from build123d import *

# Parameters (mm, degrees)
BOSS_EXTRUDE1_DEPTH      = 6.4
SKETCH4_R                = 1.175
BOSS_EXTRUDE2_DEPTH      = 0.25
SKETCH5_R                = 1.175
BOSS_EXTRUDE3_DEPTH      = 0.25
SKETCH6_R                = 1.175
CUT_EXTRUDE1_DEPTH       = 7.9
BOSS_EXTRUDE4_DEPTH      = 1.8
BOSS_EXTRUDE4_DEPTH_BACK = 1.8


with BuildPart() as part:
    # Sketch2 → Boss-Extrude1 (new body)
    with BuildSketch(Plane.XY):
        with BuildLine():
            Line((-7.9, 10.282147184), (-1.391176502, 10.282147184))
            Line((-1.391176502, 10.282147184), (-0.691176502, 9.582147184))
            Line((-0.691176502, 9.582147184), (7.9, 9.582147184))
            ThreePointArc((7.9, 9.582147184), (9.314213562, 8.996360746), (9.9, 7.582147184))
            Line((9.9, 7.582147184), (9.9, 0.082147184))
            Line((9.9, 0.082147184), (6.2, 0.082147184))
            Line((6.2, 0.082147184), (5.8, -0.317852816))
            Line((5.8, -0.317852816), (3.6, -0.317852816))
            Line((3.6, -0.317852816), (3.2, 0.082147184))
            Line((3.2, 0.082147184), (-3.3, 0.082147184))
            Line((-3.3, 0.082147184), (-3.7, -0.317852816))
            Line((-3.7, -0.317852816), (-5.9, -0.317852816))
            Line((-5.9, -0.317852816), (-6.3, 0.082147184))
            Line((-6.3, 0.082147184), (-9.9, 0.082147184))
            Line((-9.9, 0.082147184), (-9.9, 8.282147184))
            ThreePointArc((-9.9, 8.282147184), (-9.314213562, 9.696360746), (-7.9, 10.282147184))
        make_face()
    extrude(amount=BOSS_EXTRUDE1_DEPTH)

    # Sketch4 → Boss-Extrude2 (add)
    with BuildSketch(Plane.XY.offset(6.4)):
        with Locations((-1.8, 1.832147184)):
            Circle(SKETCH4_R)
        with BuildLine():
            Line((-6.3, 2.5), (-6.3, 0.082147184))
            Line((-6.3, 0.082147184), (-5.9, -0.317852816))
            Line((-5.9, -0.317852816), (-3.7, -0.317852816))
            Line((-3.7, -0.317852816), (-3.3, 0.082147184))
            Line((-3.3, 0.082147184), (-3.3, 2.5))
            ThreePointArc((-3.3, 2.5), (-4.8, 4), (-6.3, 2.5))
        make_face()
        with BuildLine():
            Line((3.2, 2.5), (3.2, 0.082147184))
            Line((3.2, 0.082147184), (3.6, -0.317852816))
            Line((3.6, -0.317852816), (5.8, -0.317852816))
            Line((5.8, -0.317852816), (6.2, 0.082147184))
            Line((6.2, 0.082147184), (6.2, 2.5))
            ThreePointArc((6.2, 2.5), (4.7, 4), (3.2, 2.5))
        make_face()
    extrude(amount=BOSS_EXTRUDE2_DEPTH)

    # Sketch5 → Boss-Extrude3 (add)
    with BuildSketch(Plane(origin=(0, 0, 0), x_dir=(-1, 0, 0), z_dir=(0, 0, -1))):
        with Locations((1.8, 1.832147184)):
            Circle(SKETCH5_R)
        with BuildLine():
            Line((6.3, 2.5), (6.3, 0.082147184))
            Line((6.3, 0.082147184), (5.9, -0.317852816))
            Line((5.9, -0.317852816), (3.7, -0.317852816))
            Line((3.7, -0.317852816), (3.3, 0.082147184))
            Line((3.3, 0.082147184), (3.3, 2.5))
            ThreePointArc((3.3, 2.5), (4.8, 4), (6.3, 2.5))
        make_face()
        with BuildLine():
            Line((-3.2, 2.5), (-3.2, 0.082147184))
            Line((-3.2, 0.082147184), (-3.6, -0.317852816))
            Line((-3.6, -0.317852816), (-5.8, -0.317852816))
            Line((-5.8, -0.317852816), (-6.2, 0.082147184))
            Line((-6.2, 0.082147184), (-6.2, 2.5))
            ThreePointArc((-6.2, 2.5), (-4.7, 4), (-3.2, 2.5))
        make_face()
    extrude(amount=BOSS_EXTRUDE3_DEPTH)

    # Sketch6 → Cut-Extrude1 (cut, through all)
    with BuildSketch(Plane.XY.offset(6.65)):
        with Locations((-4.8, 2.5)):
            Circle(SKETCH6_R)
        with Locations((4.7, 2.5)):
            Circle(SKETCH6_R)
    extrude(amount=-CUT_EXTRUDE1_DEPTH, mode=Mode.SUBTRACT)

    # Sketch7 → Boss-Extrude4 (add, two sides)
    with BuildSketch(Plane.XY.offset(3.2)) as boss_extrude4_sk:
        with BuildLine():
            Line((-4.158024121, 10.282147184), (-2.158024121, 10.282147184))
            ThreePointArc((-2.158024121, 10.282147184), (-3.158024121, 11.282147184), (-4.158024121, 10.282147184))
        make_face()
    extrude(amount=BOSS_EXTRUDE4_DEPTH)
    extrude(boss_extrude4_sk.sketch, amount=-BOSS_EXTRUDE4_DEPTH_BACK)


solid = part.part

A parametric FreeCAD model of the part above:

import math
import FreeCAD as App
import Part
import Sketcher
Q = App.Units.Quantity

doc = App.newDocument("Part")
body = doc.addObject("PartDesign::Body", "Body")

# Sketch on XY plane
sketch1 = body.newObject("Sketcher::SketchObject", "Sketch")
sketch1.AttachmentSupport = (doc.getObject("XY_Plane"), [""])
sketch1.MapMode = "FlatFace"
sketch1.addGeometry(Part.LineSegment(App.Vector(-1.4, 10.3, 0), App.Vector(-7.9, 10.3, 0)), False)
sketch1.addGeometry(Part.ArcOfCircle(Part.Circle(App.Vector(-7.9, 8.3, 0), App.Vector(0, 0, 1), 2), math.radians(90), math.radians(180)), False)
sketch1.addGeometry(Part.LineSegment(App.Vector(-9.9, 8.3, 0), App.Vector(-9.9, 0.1, 0)), False)
sketch1.addGeometry(Part.LineSegment(App.Vector(-9.9, 0.1, 0), App.Vector(-6.3, 0.1, 0)), False)
sketch1.addGeometry(Part.LineSegment(App.Vector(-6.3, 0.1, 0), App.Vector(-5.9, -0.3, 0)), False)
sketch1.addGeometry(Part.LineSegment(App.Vector(-5.9, -0.3, 0), App.Vector(-3.7, -0.3, 0)), False)
sketch1.addGeometry(Part.LineSegment(App.Vector(-3.7, -0.3, 0), App.Vector(-3.3, 0.1, 0)), False)
sketch1.addGeometry(Part.LineSegment(App.Vector(-3.3, 0.1, 0), App.Vector(3.2, 0.1, 0)), False)
sketch1.addGeometry(Part.LineSegment(App.Vector(3.2, 0.1, 0), App.Vector(3.6, -0.3, 0)), False)
sketch1.addGeometry(Part.LineSegment(App.Vector(3.6, -0.3, 0), App.Vector(5.8, -0.3, 0)), False)
sketch1.addGeometry(Part.LineSegment(App.Vector(5.8, -0.3, 0), App.Vector(6.2, 0.1, 0)), False)
sketch1.addGeometry(Part.LineSegment(App.Vector(6.2, 0.1, 0), App.Vector(9.9, 0.1, 0)), False)
sketch1.addGeometry(Part.LineSegment(App.Vector(9.9, 0.1, 0), App.Vector(9.9, 7.6, 0)), False)
sketch1.addGeometry(Part.ArcOfCircle(Part.Circle(App.Vector(7.9, 7.6, 0), App.Vector(0, 0, 1), 2), math.radians(0), math.radians(90)), False)
sketch1.addGeometry(Part.LineSegment(App.Vector(7.9, 9.6, 0), App.Vector(-0.7, 9.6, 0)), False)
sketch1.addGeometry(Part.LineSegment(App.Vector(-0.7, 9.6, 0), App.Vector(-1.4, 10.3, 0)), False)
sketch1.addConstraint(Sketcher.Constraint("Tangent", 0, 2, 1, 1))
sketch1.addConstraint(Sketcher.Constraint("Tangent", 1, 2, 2, 1))
sketch1.addConstraint(Sketcher.Constraint("Coincident", 2, 2, 3, 1))
sketch1.addConstraint(Sketcher.Constraint("Coincident", 3, 2, 4, 1))
sketch1.addConstraint(Sketcher.Constraint("Coincident", 4, 2, 5, 1))
sketch1.addConstraint(Sketcher.Constraint("Coincident", 5, 2, 6, 1))
sketch1.addConstraint(Sketcher.Constraint("Coincident", 6, 2, 7, 1))
sketch1.addConstraint(Sketcher.Constraint("Coincident", 7, 2, 8, 1))
sketch1.addConstraint(Sketcher.Constraint("Coincident", 8, 2, 9, 1))
sketch1.addConstraint(Sketcher.Constraint("Coincident", 9, 2, 10, 1))
sketch1.addConstraint(Sketcher.Constraint("Coincident", 10, 2, 11, 1))
sketch1.addConstraint(Sketcher.Constraint("Coincident", 11, 2, 12, 1))
sketch1.addConstraint(Sketcher.Constraint("Tangent", 12, 2, 13, 1))
sketch1.addConstraint(Sketcher.Constraint("Tangent", 13, 2, 14, 1))
sketch1.addConstraint(Sketcher.Constraint("Coincident", 14, 2, 15, 1))
sketch1.addConstraint(Sketcher.Constraint("Coincident", 15, 2, 0, 1))
sketch1.addConstraint(Sketcher.Constraint("Horizontal", 0))
sketch1.addConstraint(Sketcher.Constraint("Vertical", 2))
sketch1.addConstraint(Sketcher.Constraint("Horizontal", 3))
sketch1.addConstraint(Sketcher.Constraint("Horizontal", 5))
sketch1.addConstraint(Sketcher.Constraint("Horizontal", 7))
sketch1.addConstraint(Sketcher.Constraint("Horizontal", 9))
sketch1.addConstraint(Sketcher.Constraint("Horizontal", 11))
sketch1.addConstraint(Sketcher.Constraint("Vertical", 12))
sketch1.addConstraint(Sketcher.Constraint("Horizontal", 14))
sketch1.addConstraint(Sketcher.Constraint("Equal", 1, 13))
sketch1.addConstraint(Sketcher.Constraint("Symmetric", 2, 2, 11, 2, -2))
sketch1.addConstraint(Sketcher.Constraint("Perpendicular", 4, 6))
sketch1.addConstraint(Sketcher.Constraint("Perpendicular", 6, 8))
sketch1.addConstraint(Sketcher.Constraint("Perpendicular", 8, 10))
sketch1.addConstraint(Sketcher.Constraint("Perpendicular", 10, 15))
sketch1.addConstraint(Sketcher.Constraint("Horizontal", 3, 2, 6, 2))
sketch1.addConstraint(Sketcher.Constraint("Horizontal", 5, 2, 8, 2))
sketch1.addConstraint(Sketcher.Constraint("Equal", 5, 9))
sketch1.addConstraint(Sketcher.Constraint("Equal", 4, 6))
sketch1.addConstraint(Sketcher.Constraint("Radius", 1, Q("2 mm")))
sketch1.addConstraint(Sketcher.Constraint("DistanceX", 3, 1, 3, 2, Q("3.6 mm")))
sketch1.addConstraint(Sketcher.Constraint("DistanceX", 5, 1, 5, 2, Q("2.2 mm")))
sketch1.addConstraint(Sketcher.Constraint("DistanceX", 7, 1, 7, 2, Q("6.5 mm")))
sketch1.addConstraint(Sketcher.Constraint("DistanceX", 11, 1, 11, 2, Q("3.7 mm")))
sketch1.addConstraint(Sketcher.Constraint("DistanceY", 2, 2, 2, 1, Q("8.2 mm")))
sketch1.addConstraint(Sketcher.Constraint("DistanceY", 12, 1, 12, 2, Q("7.5 mm")))
sketch1.addConstraint(Sketcher.Constraint("DistanceX", 2, 2, 4, 2, Q("4 mm")))
sketch1.addConstraint(Sketcher.Constraint("DistanceX", 0, 2, 0, 1, Q("6.508823 mm")))
sketch1.addConstraint(Sketcher.Constraint("DistanceY", -1, 1, 1, 3, Q("8.282147 mm")))
pad1 = body.newObject("PartDesign::Pad", "Pad")
pad1.Profile = sketch1
pad1.Length = 6.4

# Sketch on XY plane
sketch2 = body.newObject("Sketcher::SketchObject", "Sketch001")
sketch2.AttachmentSupport = (doc.getObject("XY_Plane"), [""])
sketch2.MapMode = "FlatFace"
sketch2.AttachmentOffset = App.Placement(App.Vector(0, 0, 6.4), App.Rotation())
sketch2.addGeometry(Part.Circle(App.Vector(-1.8, 1.8, 0), App.Vector(0, 0, 1), 1.2), False)
sketch2.addGeometry(Part.LineSegment(App.Vector(-6.3, 2.5, 0), App.Vector(-6.3, 0.1, 0)), False)
sketch2.addGeometry(Part.LineSegment(App.Vector(-6.3, 0.1, 0), App.Vector(-5.9, -0.3, 0)), False)
sketch2.addGeometry(Part.LineSegment(App.Vector(-5.9, -0.3, 0), App.Vector(-3.7, -0.3, 0)), False)
sketch2.addGeometry(Part.LineSegment(App.Vector(-3.7, -0.3, 0), App.Vector(-3.3, 0.1, 0)), False)
sketch2.addGeometry(Part.LineSegment(App.Vector(-3.3, 0.1, 0), App.Vector(-3.3, 2.5, 0)), False)
sketch2.addGeometry(Part.ArcOfCircle(Part.Circle(App.Vector(-4.8, 2.5, 0), App.Vector(0, 0, 1), 1.5), math.radians(0), math.radians(180)), False)
sketch2.addGeometry(Part.LineSegment(App.Vector(3.2, 2.5, 0), App.Vector(3.2, 0.1, 0)), False)
sketch2.addGeometry(Part.LineSegment(App.Vector(3.2, 0.1, 0), App.Vector(3.6, -0.3, 0)), False)
sketch2.addGeometry(Part.LineSegment(App.Vector(3.6, -0.3, 0), App.Vector(5.8, -0.3, 0)), False)
sketch2.addGeometry(Part.LineSegment(App.Vector(5.8, -0.3, 0), App.Vector(6.2, 0.1, 0)), False)
sketch2.addGeometry(Part.LineSegment(App.Vector(6.2, 0.1, 0), App.Vector(6.2, 2.5, 0)), False)
sketch2.addGeometry(Part.ArcOfCircle(Part.Circle(App.Vector(4.7, 2.5, 0), App.Vector(0, 0, 1), 1.5), math.radians(0), math.radians(180)), False)
sketch2.addConstraint(Sketcher.Constraint("Coincident", 1, 2, 2, 1))
sketch2.addConstraint(Sketcher.Constraint("Coincident", 2, 2, 3, 1))
sketch2.addConstraint(Sketcher.Constraint("Coincident", 3, 2, 4, 1))
sketch2.addConstraint(Sketcher.Constraint("Coincident", 4, 2, 5, 1))
sketch2.addConstraint(Sketcher.Constraint("Tangent", 5, 2, 6, 1))
sketch2.addConstraint(Sketcher.Constraint("Tangent", 6, 2, 1, 1))
sketch2.addConstraint(Sketcher.Constraint("Coincident", 7, 2, 8, 1))
sketch2.addConstraint(Sketcher.Constraint("Coincident", 8, 2, 9, 1))
sketch2.addConstraint(Sketcher.Constraint("Coincident", 9, 2, 10, 1))
sketch2.addConstraint(Sketcher.Constraint("Coincident", 10, 2, 11, 1))
sketch2.addConstraint(Sketcher.Constraint("Tangent", 11, 2, 12, 1))
sketch2.addConstraint(Sketcher.Constraint("Tangent", 12, 2, 7, 1))
sketch2.addConstraint(Sketcher.Constraint("Vertical", 1))
sketch2.addConstraint(Sketcher.Constraint("Horizontal", 3))
sketch2.addConstraint(Sketcher.Constraint("Vertical", 5))
sketch2.addConstraint(Sketcher.Constraint("Vertical", 7))
sketch2.addConstraint(Sketcher.Constraint("Horizontal", 9))
sketch2.addConstraint(Sketcher.Constraint("Vertical", 11))
sketch2.addConstraint(Sketcher.Constraint("Equal", 6, 12))
sketch2.addConstraint(Sketcher.Constraint("Perpendicular", 2, 4))
sketch2.addConstraint(Sketcher.Constraint("Perpendicular", 4, 8))
sketch2.addConstraint(Sketcher.Constraint("Perpendicular", 8, 10))
sketch2.addConstraint(Sketcher.Constraint("Horizontal", 6, 3, 12, 3))
sketch2.addConstraint(Sketcher.Constraint("Horizontal", 1, 2, 4, 2))
sketch2.addConstraint(Sketcher.Constraint("Horizontal", 4, 2, 7, 2))
sketch2.addConstraint(Sketcher.Constraint("Horizontal", 3, 2, 8, 2))
sketch2.addConstraint(Sketcher.Constraint("Horizontal", 7, 2, 10, 2))
sketch2.addConstraint(Sketcher.Constraint("Equal", 2, 4))
sketch2.addConstraint(Sketcher.Constraint("Radius", 6, Q("1.5 mm")))
sketch2.addConstraint(Sketcher.Constraint("Diameter", 0, Q("2.35 mm")))
sketch2.addConstraint(Sketcher.Constraint("DistanceX", 3, 1, 3, 2, Q("2.2 mm")))
sketch2.addConstraint(Sketcher.Constraint("DistanceX", 6, 3, 0, 3, Q("3 mm")))
sketch2.addConstraint(Sketcher.Constraint("DistanceX", 1, 2, 12, 3, Q("11 mm")))
sketch2.addConstraint(Sketcher.Constraint("DistanceX", 0, 3, -1, 1, Q("1.8 mm")))
sketch2.addConstraint(Sketcher.Constraint("DistanceY", -1, 1, 6, 3, Q("2.5 mm")))
sketch2.addConstraint(Sketcher.Constraint("DistanceY", 1, 2, 0, 3, Q("1.75 mm")))
sketch2.addConstraint(Sketcher.Constraint("DistanceY", 1, 2, 1, 1, Q("2.417853 mm")))
pad2 = body.newObject("PartDesign::Pad", "Pad001")
pad2.Profile = sketch2
pad2.Length = 0.25

# Sketch on XY plane
sketch3 = body.newObject("Sketcher::SketchObject", "Sketch002")
sketch3.AttachmentSupport = (doc.getObject("XY_Plane"), [""])
sketch3.MapMode = "FlatFace"
sketch3.addGeometry(Part.Circle(App.Vector(-1.8, 1.8, 0), App.Vector(0, 0, 1), 1.2), False)
sketch3.addGeometry(Part.LineSegment(App.Vector(-6.3, 0.1, 0), App.Vector(-6.3, 2.5, 0)), False)
sketch3.addGeometry(Part.ArcOfCircle(Part.Circle(App.Vector(-4.8, 2.5, 0), App.Vector(0, 0, 1), 1.5), math.radians(0), math.radians(180)), False)
sketch3.addGeometry(Part.LineSegment(App.Vector(-3.3, 2.5, 0), App.Vector(-3.3, 0.1, 0)), False)
sketch3.addGeometry(Part.LineSegment(App.Vector(-3.3, 0.1, 0), App.Vector(-3.7, -0.3, 0)), False)
sketch3.addGeometry(Part.LineSegment(App.Vector(-3.7, -0.3, 0), App.Vector(-5.9, -0.3, 0)), False)
sketch3.addGeometry(Part.LineSegment(App.Vector(-5.9, -0.3, 0), App.Vector(-6.3, 0.1, 0)), False)
sketch3.addGeometry(Part.LineSegment(App.Vector(3.2, 0.1, 0), App.Vector(3.2, 2.5, 0)), False)
sketch3.addGeometry(Part.ArcOfCircle(Part.Circle(App.Vector(4.7, 2.5, 0), App.Vector(0, 0, 1), 1.5), math.radians(0), math.radians(180)), False)
sketch3.addGeometry(Part.LineSegment(App.Vector(6.2, 2.5, 0), App.Vector(6.2, 0.1, 0)), False)
sketch3.addGeometry(Part.LineSegment(App.Vector(6.2, 0.1, 0), App.Vector(5.8, -0.3, 0)), False)
sketch3.addGeometry(Part.LineSegment(App.Vector(5.8, -0.3, 0), App.Vector(3.6, -0.3, 0)), False)
sketch3.addGeometry(Part.LineSegment(App.Vector(3.6, -0.3, 0), App.Vector(3.2, 0.1, 0)), False)
sketch3.addConstraint(Sketcher.Constraint("Tangent", 1, 2, 2, 2))
sketch3.addConstraint(Sketcher.Constraint("Tangent", 2, 1, 3, 1))
sketch3.addConstraint(Sketcher.Constraint("Coincident", 3, 2, 4, 1))
sketch3.addConstraint(Sketcher.Constraint("Coincident", 4, 2, 5, 1))
sketch3.addConstraint(Sketcher.Constraint("Coincident", 5, 2, 6, 1))
sketch3.addConstraint(Sketcher.Constraint("Coincident", 6, 2, 1, 1))
sketch3.addConstraint(Sketcher.Constraint("Tangent", 7, 2, 8, 2))
sketch3.addConstraint(Sketcher.Constraint("Tangent", 8, 1, 9, 1))
sketch3.addConstraint(Sketcher.Constraint("Coincident", 9, 2, 10, 1))
sketch3.addConstraint(Sketcher.Constraint("Coincident", 10, 2, 11, 1))
sketch3.addConstraint(Sketcher.Constraint("Coincident", 11, 2, 12, 1))
sketch3.addConstraint(Sketcher.Constraint("Coincident", 12, 2, 7, 1))
sketch3.addConstraint(Sketcher.Constraint("Vertical", 1))
sketch3.addConstraint(Sketcher.Constraint("Vertical", 3))
sketch3.addConstraint(Sketcher.Constraint("Horizontal", 5))
sketch3.addConstraint(Sketcher.Constraint("Vertical", 7))
sketch3.addConstraint(Sketcher.Constraint("Vertical", 9))
sketch3.addConstraint(Sketcher.Constraint("Horizontal", 11))
sketch3.addConstraint(Sketcher.Constraint("Equal", 2, 8))
sketch3.addConstraint(Sketcher.Constraint("Perpendicular", 4, 6))
sketch3.addConstraint(Sketcher.Constraint("Perpendicular", 6, 10))
sketch3.addConstraint(Sketcher.Constraint("Perpendicular", 10, 12))
sketch3.addConstraint(Sketcher.Constraint("Horizontal", 2, 3, 8, 3))
sketch3.addConstraint(Sketcher.Constraint("Horizontal", 3, 2, 6, 2))
sketch3.addConstraint(Sketcher.Constraint("Horizontal", 6, 2, 9, 2))
sketch3.addConstraint(Sketcher.Constraint("Horizontal", 5, 2, 10, 2))
sketch3.addConstraint(Sketcher.Constraint("Horizontal", 9, 2, 12, 2))
sketch3.addConstraint(Sketcher.Constraint("Equal", 4, 6))
sketch3.addConstraint(Sketcher.Constraint("Radius", 2, Q("1.5 mm")))
sketch3.addConstraint(Sketcher.Constraint("Diameter", 0, Q("2.35 mm")))
sketch3.addConstraint(Sketcher.Constraint("DistanceX", 5, 2, 5, 1, Q("2.2 mm")))
sketch3.addConstraint(Sketcher.Constraint("DistanceX", 2, 3, 0, 3, Q("3 mm")))
sketch3.addConstraint(Sketcher.Constraint("DistanceX", 1, 2, 8, 3, Q("11 mm")))
sketch3.addConstraint(Sketcher.Constraint("DistanceX", 0, 3, -1, 1, Q("1.8 mm")))
sketch3.addConstraint(Sketcher.Constraint("DistanceY", -1, 1, 2, 3, Q("2.5 mm")))
sketch3.addConstraint(Sketcher.Constraint("DistanceY", 3, 2, 0, 3, Q("1.75 mm")))
sketch3.addConstraint(Sketcher.Constraint("DistanceY", 1, 1, 1, 2, Q("2.417853 mm")))
pad3 = body.newObject("PartDesign::Pad", "Pad002")
pad3.Profile = sketch3
pad3.Length = 0.25
pad3.Reversed = True

# Sketch on XY plane
sketch4 = body.newObject("Sketcher::SketchObject", "Sketch003")
sketch4.AttachmentSupport = (doc.getObject("XY_Plane"), [""])
sketch4.MapMode = "FlatFace"
sketch4.AttachmentOffset = App.Placement(App.Vector(0, 0, 6.65), App.Rotation())
sketch4.addGeometry(Part.Circle(App.Vector(-4.8, 2.5, 0), App.Vector(0, 0, 1), 1.2), False)
sketch4.addGeometry(Part.Circle(App.Vector(4.7, 2.5, 0), App.Vector(0, 0, 1), 1.2), False)
sketch4.addConstraint(Sketcher.Constraint("Equal", 0, 1))
sketch4.addConstraint(Sketcher.Constraint("Horizontal", 0, 3, 1, 3))
sketch4.addConstraint(Sketcher.Constraint("Diameter", 0, Q("2.35 mm")))
sketch4.addConstraint(Sketcher.Constraint("DistanceX", 0, 3, -1, 1, Q("4.8 mm")))
sketch4.addConstraint(Sketcher.Constraint("DistanceY", -1, 1, 0, 3, Q("2.5 mm")))
sketch4.addConstraint(Sketcher.Constraint("DistanceX", -1, 1, 1, 3, Q("4.7 mm")))
pocket1 = body.newObject("PartDesign::Pocket", "Pocket")
pocket1.Profile = sketch4
pocket1.Type = "ThroughAll"

# Sketch on XY plane
sketch5 = body.newObject("Sketcher::SketchObject", "Sketch004")
sketch5.AttachmentSupport = (doc.getObject("XY_Plane"), [""])
sketch5.MapMode = "FlatFace"
sketch5.AttachmentOffset = App.Placement(App.Vector(0, 0, 3.2), App.Rotation())
sketch5.addGeometry(Part.LineSegment(App.Vector(-4.2, 10.3, 0), App.Vector(-2.2, 10.3, 0)), False)
sketch5.addGeometry(Part.ArcOfCircle(Part.Circle(App.Vector(-3.2, 10.3, 0), App.Vector(0, 0, 1), 1), math.radians(0), math.radians(180)), False)
sketch5.addConstraint(Sketcher.Constraint("Coincident", 0, 1, 1, 2))
sketch5.addConstraint(Sketcher.Constraint("Coincident", 1, 1, 0, 2))
sketch5.addConstraint(Sketcher.Constraint("Horizontal", 0))
sketch5.addConstraint(Sketcher.Constraint("Horizontal", 1, 3, 0, 1))
sketch5.addConstraint(Sketcher.Constraint("Radius", 1, Q("1 mm")))
sketch5.addConstraint(Sketcher.Constraint("DistanceX", 1, 3, -1, 1, Q("3.158024 mm")))
sketch5.addConstraint(Sketcher.Constraint("DistanceY", -1, 1, 1, 3, Q("10.282147 mm")))
pad4 = body.newObject("PartDesign::Pad", "Pad003")
pad4.Profile = sketch5
pad4.Type = "TwoLengths"
pad4.Length = 1.8
pad4.Length2 = 1.8

doc.recompute()
